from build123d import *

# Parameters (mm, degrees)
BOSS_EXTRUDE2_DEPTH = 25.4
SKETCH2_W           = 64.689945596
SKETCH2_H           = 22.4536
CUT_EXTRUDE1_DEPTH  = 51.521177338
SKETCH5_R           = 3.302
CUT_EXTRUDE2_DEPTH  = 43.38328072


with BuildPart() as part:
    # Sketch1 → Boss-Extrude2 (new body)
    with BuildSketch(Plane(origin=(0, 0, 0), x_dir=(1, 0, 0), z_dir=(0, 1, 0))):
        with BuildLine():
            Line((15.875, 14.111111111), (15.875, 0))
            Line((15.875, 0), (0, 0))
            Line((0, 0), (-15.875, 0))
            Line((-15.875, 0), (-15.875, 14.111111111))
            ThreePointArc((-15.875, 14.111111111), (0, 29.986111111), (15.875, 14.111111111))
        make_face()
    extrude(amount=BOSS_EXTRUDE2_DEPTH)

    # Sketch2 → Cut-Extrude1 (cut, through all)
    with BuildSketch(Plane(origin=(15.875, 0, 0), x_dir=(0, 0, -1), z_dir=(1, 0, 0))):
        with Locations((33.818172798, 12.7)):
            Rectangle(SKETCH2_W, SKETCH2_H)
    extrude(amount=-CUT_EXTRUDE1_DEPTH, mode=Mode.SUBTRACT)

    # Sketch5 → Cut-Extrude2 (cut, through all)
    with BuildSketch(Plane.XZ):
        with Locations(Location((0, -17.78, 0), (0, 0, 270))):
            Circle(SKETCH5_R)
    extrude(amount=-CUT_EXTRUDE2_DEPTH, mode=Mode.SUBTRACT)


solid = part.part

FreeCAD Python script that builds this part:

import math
import FreeCAD as App
import Part
import Sketcher
from FreeCAD import Vector
Q = App.Units.Quantity

doc = App.newDocument("Part")
body = doc.addObject("PartDesign::Body", "Body")

# Sketch on XZ plane
sketch1 = body.newObject("Sketcher::SketchObject", "Sketch")
sketch1.AttachmentSupport = (doc.getObject("XZ_Plane"), [""])
sketch1.MapMode = "FlatFace"
sketch1.addGeometry(Part.LineSegment(Vector(16, 0, 0), Vector(16, -14, 0)), False)
sketch1.addGeometry(Part.ArcOfCircle(Part.Circle(Vector(0, -14, 0), Vector(0, 0, 1), 16), math.radians(180), math.radians(360)), False)
sketch1.addGeometry(Part.LineSegment(Vector(-16, -14, 0), Vector(-16, 0, 0)), False)
sketch1.addGeometry(Part.LineSegment(Vector(-16, 0, 0), Vector(16, 0, 0)), False)
sketch1.addConstraint(Sketcher.Constraint("Tangent", 0, 2, 1, 2))
sketch1.addConstraint(Sketcher.Constraint("Tangent", 1, 1, 2, 1))
sketch1.addConstraint(Sketcher.Constraint("Coincident", 2, 2, 3, 1))
sketch1.addConstraint(Sketcher.Constraint("Coincident", 3, 2, 0, 1))
sketch1.addConstraint(Sketcher.Constraint("Vertical", 0))
sketch1.addConstraint(Sketcher.Constraint("Vertical", 2))
sketch1.addConstraint(Sketcher.Constraint("Horizontal", 3))
sketch1.addConstraint(Sketcher.Constraint("Symmetric", 2, 2, 3, 2, -1, 1))
sketch1.addConstraint(Sketcher.Constraint("Radius", 1, Q("0.625 in")))
sketch1.addConstraint(Sketcher.Constraint("DistanceY", 0, 2, 0, 1, Q("14.111111 mm")))
pad1 = body.newObject("PartDesign::Pad", "Pad")
pad1.Profile = sketch1
pad1.Length = Q("1 in")
pad1.Reversed = True

# Sketch on YZ plane
sketch2 = body.newObject("Sketcher::SketchObject", "Sketch001")
sketch2.AttachmentSupport = (doc.getObject("YZ_Plane"), [""])
sketch2.MapMode = "FlatFace"
sketch2.AttachmentOffset = App.Placement(Vector(0, 0, 0.625 * 25.4), App.Rotation())
sketch2.addGeometry(Part.LineSegment(Vector(24, -1, 0), Vector(1, -1, 0)), False)
sketch2.addGeometry(Part.LineSegment(Vector(1, -1, 0), Vector(1, -66, 0)), False)
sketch2.addGeometry(Part.LineSegment(Vector(1, -66, 0), Vector(24, -66, 0)), False)
sketch2.addGeometry(Part.LineSegment(Vector(24, -66, 0), Vector(24, -1, 0)), False)
sketch2.addConstraint(Sketcher.Constraint("Coincident", 0, 2, 1, 1))
sketch2.addConstraint(Sketcher.Constraint("Coincident", 1, 2, 2, 1))
sketch2.addConstraint(Sketcher.Constraint("Coincident", 2, 2, 3, 1))
sketch2.addConstraint(Sketcher.Constraint("Coincident", 3, 2, 0, 1))
sketch2.addConstraint(Sketcher.Constraint("Horizontal", 0))
sketch2.addConstraint(Sketcher.Constraint("Vertical", 1))
sketch2.addConstraint(Sketcher.Constraint("Horizontal", 2))
sketch2.addConstraint(Sketcher.Constraint("Vertical", 3))
sketch2.addConstraint(Sketcher.Constraint("DistanceX", 0, 2, 0, 1, Q("0.884 in")))
sketch2.addConstraint(Sketcher.Constraint("DistanceX", -1, 1, 0, 2, Q("0.058 in")))
sketch2.addConstraint(Sketcher.Constraint("DistanceY", 0, 2, -1, 1, Q("0.058 in")))
sketch2.addConstraint(Sketcher.Constraint("DistanceY", 1, 2, 1, 1, Q("64.689946 mm")))
pocket1 = body.newObject("PartDesign::Pocket", "Pocket")
pocket1.Profile = sketch2
pocket1.Type = "ThroughAll"

# Sketch on XZ plane
sketch3 = body.newObject("Sketcher::SketchObject", "Sketch002")
sketch3.AttachmentSupport = (doc.getObject("XZ_Plane"), [""])
sketch3.MapMode = "FlatFace"
sketch3.addGeometry(Part.Circle(Vector(0, -17.8, 0), Vector(0, 0, 1), 3.3), False)
sketch3.addConstraint(Sketcher.Constraint("PointOnObject", 0, 3, -2))
sketch3.addConstraint(Sketcher.Constraint("Diameter", 0, Q("0.26 in")))
sketch3.addConstraint(Sketcher.Constraint("DistanceY", 0, 3, -1, 1, Q("0.7 in")))
pocket2 = body.newObject("PartDesign::Pocket", "Pocket001")
pocket2.Profile = sketch3
pocket2.Type = "ThroughAll"

doc.recompute()
